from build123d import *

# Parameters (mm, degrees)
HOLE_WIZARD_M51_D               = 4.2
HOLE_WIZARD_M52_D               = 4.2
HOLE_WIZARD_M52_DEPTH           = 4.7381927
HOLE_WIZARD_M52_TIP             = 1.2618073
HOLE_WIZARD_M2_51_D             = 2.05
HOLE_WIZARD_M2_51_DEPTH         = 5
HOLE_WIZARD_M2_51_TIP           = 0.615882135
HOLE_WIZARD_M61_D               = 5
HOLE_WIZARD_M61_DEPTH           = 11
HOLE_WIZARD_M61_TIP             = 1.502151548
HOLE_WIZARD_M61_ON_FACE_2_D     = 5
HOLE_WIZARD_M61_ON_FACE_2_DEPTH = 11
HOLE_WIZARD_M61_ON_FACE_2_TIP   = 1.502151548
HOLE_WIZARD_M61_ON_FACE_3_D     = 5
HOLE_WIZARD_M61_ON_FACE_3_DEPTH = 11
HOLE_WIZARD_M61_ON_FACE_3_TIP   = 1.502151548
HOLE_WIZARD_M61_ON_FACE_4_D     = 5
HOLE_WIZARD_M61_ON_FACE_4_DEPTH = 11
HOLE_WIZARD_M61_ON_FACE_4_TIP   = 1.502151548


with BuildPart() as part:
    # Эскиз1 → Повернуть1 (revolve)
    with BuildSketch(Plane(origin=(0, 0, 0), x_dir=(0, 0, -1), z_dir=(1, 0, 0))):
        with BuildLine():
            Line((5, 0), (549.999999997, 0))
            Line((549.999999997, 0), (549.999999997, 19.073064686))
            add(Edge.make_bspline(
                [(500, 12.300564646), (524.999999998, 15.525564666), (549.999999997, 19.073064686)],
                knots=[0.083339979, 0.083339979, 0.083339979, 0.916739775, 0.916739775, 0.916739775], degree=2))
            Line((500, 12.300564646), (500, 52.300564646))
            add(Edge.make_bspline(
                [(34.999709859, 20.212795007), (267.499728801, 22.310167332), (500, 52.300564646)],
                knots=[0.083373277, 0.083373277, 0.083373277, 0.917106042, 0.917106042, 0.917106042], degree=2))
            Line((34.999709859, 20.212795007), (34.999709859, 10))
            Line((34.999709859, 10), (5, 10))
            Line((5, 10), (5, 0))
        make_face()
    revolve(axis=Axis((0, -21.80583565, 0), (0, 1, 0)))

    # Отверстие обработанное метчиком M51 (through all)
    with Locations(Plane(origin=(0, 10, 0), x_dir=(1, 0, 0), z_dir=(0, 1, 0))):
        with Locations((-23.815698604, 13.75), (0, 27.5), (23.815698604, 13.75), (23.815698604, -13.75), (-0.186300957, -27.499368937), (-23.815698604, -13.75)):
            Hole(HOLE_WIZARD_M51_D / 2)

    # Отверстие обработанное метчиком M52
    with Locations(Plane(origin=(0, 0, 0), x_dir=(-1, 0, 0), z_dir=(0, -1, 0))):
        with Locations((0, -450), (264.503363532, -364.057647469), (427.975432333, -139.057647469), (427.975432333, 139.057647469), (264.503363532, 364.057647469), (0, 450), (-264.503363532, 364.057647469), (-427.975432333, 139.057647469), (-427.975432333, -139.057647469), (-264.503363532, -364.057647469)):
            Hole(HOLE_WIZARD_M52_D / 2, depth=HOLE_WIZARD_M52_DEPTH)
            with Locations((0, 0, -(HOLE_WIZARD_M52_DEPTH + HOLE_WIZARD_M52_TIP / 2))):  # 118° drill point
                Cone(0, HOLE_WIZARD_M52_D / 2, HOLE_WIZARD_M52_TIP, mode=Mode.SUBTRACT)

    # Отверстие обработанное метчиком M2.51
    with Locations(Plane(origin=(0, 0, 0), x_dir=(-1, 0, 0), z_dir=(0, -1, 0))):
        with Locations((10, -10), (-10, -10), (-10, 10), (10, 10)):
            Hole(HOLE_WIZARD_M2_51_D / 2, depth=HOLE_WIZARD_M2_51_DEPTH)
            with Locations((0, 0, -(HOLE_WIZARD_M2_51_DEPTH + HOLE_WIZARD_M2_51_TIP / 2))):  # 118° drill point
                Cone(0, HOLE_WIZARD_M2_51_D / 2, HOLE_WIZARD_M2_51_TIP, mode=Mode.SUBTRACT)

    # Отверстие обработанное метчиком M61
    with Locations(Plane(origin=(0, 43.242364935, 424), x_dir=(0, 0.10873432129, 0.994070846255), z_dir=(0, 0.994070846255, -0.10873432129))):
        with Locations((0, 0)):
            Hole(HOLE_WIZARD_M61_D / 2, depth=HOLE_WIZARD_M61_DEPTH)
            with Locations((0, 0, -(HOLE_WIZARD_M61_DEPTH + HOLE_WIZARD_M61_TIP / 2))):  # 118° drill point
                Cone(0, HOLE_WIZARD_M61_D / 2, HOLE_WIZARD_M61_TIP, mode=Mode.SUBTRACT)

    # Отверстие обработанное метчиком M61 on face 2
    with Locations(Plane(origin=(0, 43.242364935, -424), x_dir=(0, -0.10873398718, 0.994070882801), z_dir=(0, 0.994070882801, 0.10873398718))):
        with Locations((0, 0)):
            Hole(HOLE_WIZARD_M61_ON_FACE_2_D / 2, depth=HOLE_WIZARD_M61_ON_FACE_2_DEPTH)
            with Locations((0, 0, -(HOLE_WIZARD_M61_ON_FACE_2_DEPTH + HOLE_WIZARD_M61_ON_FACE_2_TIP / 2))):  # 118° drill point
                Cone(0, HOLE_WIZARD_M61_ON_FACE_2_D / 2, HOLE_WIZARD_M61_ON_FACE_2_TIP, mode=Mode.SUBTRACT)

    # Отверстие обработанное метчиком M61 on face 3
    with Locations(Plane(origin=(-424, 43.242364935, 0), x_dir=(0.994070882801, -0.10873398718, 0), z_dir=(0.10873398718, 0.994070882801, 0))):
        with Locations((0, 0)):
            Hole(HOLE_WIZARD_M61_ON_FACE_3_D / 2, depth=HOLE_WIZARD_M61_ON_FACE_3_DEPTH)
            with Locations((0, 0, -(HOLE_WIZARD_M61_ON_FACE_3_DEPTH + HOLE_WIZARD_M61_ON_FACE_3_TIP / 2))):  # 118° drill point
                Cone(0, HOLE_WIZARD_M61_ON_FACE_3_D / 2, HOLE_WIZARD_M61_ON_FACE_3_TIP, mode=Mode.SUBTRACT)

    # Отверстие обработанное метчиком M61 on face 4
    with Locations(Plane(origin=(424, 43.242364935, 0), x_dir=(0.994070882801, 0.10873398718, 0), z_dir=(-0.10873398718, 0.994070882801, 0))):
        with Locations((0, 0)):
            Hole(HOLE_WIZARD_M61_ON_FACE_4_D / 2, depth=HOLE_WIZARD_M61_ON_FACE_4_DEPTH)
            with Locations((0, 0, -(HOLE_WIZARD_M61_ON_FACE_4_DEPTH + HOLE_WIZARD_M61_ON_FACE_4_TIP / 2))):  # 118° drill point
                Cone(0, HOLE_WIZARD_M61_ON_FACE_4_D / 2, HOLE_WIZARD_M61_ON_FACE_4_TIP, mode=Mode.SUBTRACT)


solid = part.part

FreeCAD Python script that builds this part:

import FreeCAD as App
import Part
import Sketcher
Q = App.Units.Quantity

doc = App.newDocument("Part")
body = doc.addObject("PartDesign::Body", "Body")

# Sketch on YZ plane
sketch1 = body.newObject("Sketcher::SketchObject", "Sketch")
sketch1.AttachmentSupport = (doc.getObject("YZ_Plane"), [""])
sketch1.MapMode = "FlatFace"
sketch1.addGeometry(Part.LineSegment(App.Vector(0, -5, 0), App.Vector(0, -550, 0)), False)
sketch1.addGeometry(Part.LineSegment(App.Vector(0, -550, 0), App.Vector(19.073065, -550, 0)), False)
sketch1.addGeometry(Part.BSplineCurve([App.Vector(12.300565, -500, 0), App.Vector(15.525565, -525, 0), App.Vector(19.073065, -550, 0)], [3, 3], [0.083339979, 0.916739775], False, 2, [1, 1, 1], False), False)
sketch1.addGeometry(Part.LineSegment(App.Vector(12.300565, -500, 0), App.Vector(52.300565, -500, 0)), False)
sketch1.addGeometry(Part.BSplineCurve([App.Vector(20.212795, -34.99971, 0), App.Vector(22.310167, -267.499729, 0), App.Vector(52.300565, -500, 0)], [3, 3], [0.083373277, 0.917106042], False, 2, [1, 1, 1], False), False)
sketch1.addGeometry(Part.LineSegment(App.Vector(20.212795, -34.99971, 0), App.Vector(10, -34.99971, 0)), False)
sketch1.addGeometry(Part.LineSegment(App.Vector(10, -34.99971, 0), App.Vector(10, -5, 0)), False)
sketch1.addGeometry(Part.LineSegment(App.Vector(10, -5, 0), App.Vector(0, -5, 0)), False)
sketch1.addConstraint(Sketcher.Constraint("Block", 2))
sketch1.addConstraint(Sketcher.Constraint("Block", 4))
sketch1.addConstraint(Sketcher.Constraint("Coincident", 0, 2, 1, 1))
sketch1.addConstraint(Sketcher.Constraint("Coincident", 1, 2, 2, 2))
sketch1.addConstraint(Sketcher.Constraint("Coincident", 2, 1, 3, 1))
sketch1.addConstraint(Sketcher.Constraint("Coincident", 3, 2, 4, 2))
sketch1.addConstraint(Sketcher.Constraint("Coincident", 4, 1, 5, 1))
sketch1.addConstraint(Sketcher.Constraint("Coincident", 5, 2, 6, 1))
sketch1.addConstraint(Sketcher.Constraint("Coincident", 6, 2, 7, 1))
sketch1.addConstraint(Sketcher.Constraint("Coincident", 7, 2, 0, 1))
sketch1.addConstraint(Sketcher.Constraint("Vertical", 0))
sketch1.addConstraint(Sketcher.Constraint("Horizontal", 1))
sketch1.addConstraint(Sketcher.Constraint("Horizontal", 5))
sketch1.addConstraint(Sketcher.Constraint("Vertical", 6))
sketch1.addConstraint(Sketcher.Constraint("Horizontal", 7))
sketch1.addConstraint(Sketcher.Constraint("PointOnObject", 0, 2, -2))
sketch1.addConstraint(Sketcher.Constraint("DistanceX", 7, 2, 7, 1, Q("10 mm")))
sketch1.addConstraint(Sketcher.Constraint("DistanceY", 0, 2, 0, 1, Q("545 mm")))
revolution = body.newObject("PartDesign::Revolution", "Revolution")
revolution.Profile = sketch1
revolution.ReferenceAxis = (sketch1, ["H_Axis"])
revolution.Angle = 360

# Sketch on XZ plane
sketch2 = body.newObject("Sketcher::SketchObject", "Sketch001")
sketch2.AttachmentSupport = (doc.getObject("XZ_Plane"), [""])
sketch2.MapMode = "FlatFace"
sketch2.AttachmentOffset = App.Placement(App.Vector(0, 0, -10), App.Rotation())
sketch2.addGeometry(Part.Circle(App.Vector(-23.815699, -13.75, 0), App.Vector(0, 0, 1), 2.1), False)
sketch2.addGeometry(Part.Circle(App.Vector(0, -27.5, 0), App.Vector(0, 0, 1), 2.1), False)
sketch2.addGeometry(Part.Circle(App.Vector(23.815699, -13.75, 0), App.Vector(0, 0, 1), 2.1), False)
sketch2.addGeometry(Part.Circle(App.Vector(23.815699, 13.75, 0), App.Vector(0, 0, 1), 2.1), False)
sketch2.addGeometry(Part.Circle(App.Vector(-0.186301, 27.499369, 0), App.Vector(0, 0, 1), 2.1), False)
sketch2.addGeometry(Part.Circle(App.Vector(-23.815699, 13.75, 0), App.Vector(0, 0, 1), 2.1), False)
sketch2.addConstraint(Sketcher.Constraint("Equal", 0, 1))
sketch2.addConstraint(Sketcher.Constraint("Equal", 1, 2))
sketch2.addConstraint(Sketcher.Constraint("Equal", 2, 3))
sketch2.addConstraint(Sketcher.Constraint("Equal", 3, 4))
sketch2.addConstraint(Sketcher.Constraint("Equal", 4, 5))
sketch2.addConstraint(Sketcher.Constraint("Symmetric", 0, 3, 3, 3, -1, 1))
sketch2.addConstraint(Sketcher.Constraint("Symmetric", 2, 3, 5, 3, -1, 1))
sketch2.addConstraint(Sketcher.Constraint("Symmetric", 0, 3, 2, 3, -2))
sketch2.addConstraint(Sketcher.Constraint("PointOnObject", 1, 3, -2))
sketch2.addConstraint(Sketcher.Constraint("Diameter", 0, Q("4.2 mm")))
sketch2.addConstraint(Sketcher.Constraint("DistanceY", 1, 3, -1, 1, Q("27.5 mm")))
sketch2.addConstraint(Sketcher.Constraint("DistanceY", 2, 3, 3, 3, Q("27.5 mm")))
sketch2.addConstraint(Sketcher.Constraint("DistanceX", 4, 3, 3, 3, Q("24.002 mm")))
sketch2.addConstraint(Sketcher.Constraint("DistanceX", 0, 3, -1, 1, Q("23.815699 mm")))
sketch2.addConstraint(Sketcher.Constraint("DistanceY", -1, 1, 4, 3, Q("27.499369 mm")))
doc.recompute()
hole = body.newObject("PartDesign::Hole", "Hole")
hole.Profile = sketch2
hole.ThreadType = "None"
hole.Diameter = 4.2
hole.DepthType = "ThroughAll"
hole.Reversed = True

# Sketch on XZ plane
sketch3 = body.newObject("Sketcher::SketchObject", "Sketch002")
sketch3.AttachmentSupport = (doc.getObject("XZ_Plane"), [""])
sketch3.MapMode = "FlatFace"
sketch3.addGeometry(Part.Circle(App.Vector(0, 450, 0), App.Vector(0, 0, 1), 2.1), False)
sketch3.addGeometry(Part.Circle(App.Vector(-264.503364, 364.057647, 0), App.Vector(0, 0, 1), 2.1), False)
sketch3.addGeometry(Part.Circle(App.Vector(-427.975432, 139.057647, 0), App.Vector(0, 0, 1), 2.1), False)
sketch3.addGeometry(Part.Circle(App.Vector(-427.975432, -139.057647, 0), App.Vector(0, 0, 1), 2.1), False)
sketch3.addGeometry(Part.Circle(App.Vector(-264.503364, -364.057647, 0), App.Vector(0, 0, 1), 2.1), False)
sketch3.addGeometry(Part.Circle(App.Vector(0, -450, 0), App.Vector(0, 0, 1), 2.1), False)
sketch3.addGeometry(Part.Circle(App.Vector(264.503364, -364.057647, 0), App.Vector(0, 0, 1), 2.1), False)
sketch3.addGeometry(Part.Circle(App.Vector(427.975432, -139.057647, 0), App.Vector(0, 0, 1), 2.1), False)
sketch3.addGeometry(Part.Circle(App.Vector(427.975432, 139.057647, 0), App.Vector(0, 0, 1), 2.1), False)
sketch3.addGeometry(Part.Circle(App.Vector(264.503364, 364.057647, 0), App.Vector(0, 0, 1), 2.1), False)
sketch3.addConstraint(Sketcher.Constraint("Equal", 0, 1))
sketch3.addConstraint(Sketcher.Constraint("Equal", 1, 2))
sketch3.addConstraint(Sketcher.Constraint("Equal", 2, 3))
sketch3.addConstraint(Sketcher.Constraint("Equal", 3, 4))
sketch3.addConstraint(Sketcher.Constraint("Equal", 4, 5))
sketch3.addConstraint(Sketcher.Constraint("Equal", 5, 6))
sketch3.addConstraint(Sketcher.Constraint("Equal", 6, 7))
sketch3.addConstraint(Sketcher.Constraint("Equal", 7, 8))
sketch3.addConstraint(Sketcher.Constraint("Equal", 8, 9))
sketch3.addConstraint(Sketcher.Constraint("Symmetric", 0, 3, 5, 3, -1, 1))
sketch3.addConstraint(Sketcher.Constraint("Symmetric", 1, 3, 6, 3, -1, 1))
sketch3.addConstraint(Sketcher.Constraint("Symmetric", 2, 3, 7, 3, -1, 1))
sketch3.addConstraint(Sketcher.Constraint("Symmetric", 3, 3, 8, 3, -1, 1))
sketch3.addConstraint(Sketcher.Constraint("Symmetric", 4, 3, 9, 3, -1, 1))
sketch3.addConstraint(Sketcher.Constraint("Symmetric", 4, 3, 6, 3, -2))
sketch3.addConstraint(Sketcher.Constraint("Symmetric", 3, 3, 7, 3, -2))
sketch3.addConstraint(Sketcher.Constraint("PointOnObject", 0, 3, -2))
sketch3.addConstraint(Sketcher.Constraint("Diameter", 0, Q("4.2 mm")))
sketch3.addConstraint(Sketcher.Constraint("DistanceY", -1, 1, 0, 3, Q("450 mm")))
sketch3.addConstraint(Sketcher.Constraint("DistanceY", 2, 3, 1, 3, Q("225 mm")))
sketch3.addConstraint(Sketcher.Constraint("DistanceX", 2, 3, 1, 3, Q("163.472069 mm")))
sketch3.addConstraint(Sketcher.Constraint("DistanceX", 1, 3, -1, 1, Q("264.503364 mm")))
sketch3.addConstraint(Sketcher.Constraint("DistanceY", -1, 1, 1, 3, Q("364.057647 mm")))
doc.recompute()
hole2 = body.newObject("PartDesign::Hole", "Hole001")
hole2.Profile = sketch3
hole2.ThreadType = "None"
hole2.Diameter = 4.2
hole2.DepthType = "Dimension"
hole2.Depth = 4.738193
hole2.DrillPoint = "Angled"
hole2.DrillPointAngle = 118

# Sketch on XZ plane
sketch4 = body.newObject("Sketcher::SketchObject", "Sketch003")
sketch4.AttachmentSupport = (doc.getObject("XZ_Plane"), [""])
sketch4.MapMode = "FlatFace"
sketch4.addGeometry(Part.Circle(App.Vector(-10, 10, 0), App.Vector(0, 0, 1), 1.025), False)
sketch4.addGeometry(Part.Circle(App.Vector(10, 10, 0), App.Vector(0, 0, 1), 1.025), False)
sketch4.addGeometry(Part.Circle(App.Vector(10, -10, 0), App.Vector(0, 0, 1), 1.025), False)
sketch4.addGeometry(Part.Circle(App.Vector(-10, -10, 0), App.Vector(0, 0, 1), 1.025), False)
sketch4.addConstraint(Sketcher.Constraint("Equal", 0, 1))
sketch4.addConstraint(Sketcher.Constraint("Equal", 1, 2))
sketch4.addConstraint(Sketcher.Constraint("Equal", 2, 3))
sketch4.addConstraint(Sketcher.Constraint("Symmetric", 0, 3, 2, 3, -1, 1))
sketch4.addConstraint(Sketcher.Constraint("Symmetric", 1, 3, 3, 3, -1, 1))
sketch4.addConstraint(Sketcher.Constraint("Symmetric", 0, 3, 1, 3, -2))
sketch4.addConstraint(Sketcher.Constraint("Diameter", 0, Q("2.05 mm")))
sketch4.addConstraint(Sketcher.Constraint("DistanceX", 0, 3, -1, 1, Q("10 mm")))
sketch4.addConstraint(Sketcher.Constraint("DistanceY", -1, 1, 0, 3, Q("10 mm")))
doc.recompute()
hole3 = body.newObject("PartDesign::Hole", "Hole002")
hole3.Profile = sketch4
hole3.ThreadType = "None"
hole3.Diameter = 2.05
hole3.DepthType = "Dimension"
hole3.Depth = 5
hole3.DrillPoint = "Angled"
hole3.DrillPointAngle = 118

# Sketch on an angled plane
sketch5 = body.newObject("Sketcher::SketchObject", "Sketch004")
sketch5.Placement = App.Placement(App.Vector(0, -3.098895, 0.338966), App.Rotation(App.Vector(0, 0.108734321, 0.994070846), App.Vector(0.999999999, 0, 0), App.Vector(0, 0.994070846, -0.108734321), "ZXY"))
sketch5.addGeometry(Part.Circle(App.Vector(426.187968, 0, 0), App.Vector(0, 0, 1), 2.5), False)
sketch5.addConstraint(Sketcher.Constraint("PointOnObject", 0, 3, -1))
sketch5.addConstraint(Sketcher.Constraint("Diameter", 0, Q("5 mm")))
sketch5.addConstraint(Sketcher.Constraint("DistanceX", -1, 1, 0, 3, Q("426.187968 mm")))
doc.recompute()
hole4 = body.newObject("PartDesign::Hole", "Hole003")
hole4.Profile = sketch5
hole4.ThreadType = "None"
hole4.Diameter = 5
hole4.DepthType = "Dimension"
hole4.Depth = 11
hole4.DrillPoint = "Angled"
hole4.DrillPointAngle = 118

# Sketch on an angled plane
sketch6 = body.newObject("Sketcher::SketchObject", "Sketch005")
sketch6.Placement = App.Placement(App.Vector(0, -3.098752, -0.338949), App.Rotation(App.Vector(0, -0.108733987, 0.994070883), App.Vector(1, 0, 0), App.Vector(0, 0.994070883, 0.108733987), "ZXY"))
sketch6.addGeometry(Part.Circle(App.Vector(-426.187969, 0, 0), App.Vector(0, 0, 1), 2.5), False)
sketch6.addConstraint(Sketcher.Constraint("PointOnObject", 0, 3, -1))
sketch6.addConstraint(Sketcher.Constraint("Diameter", 0, Q("5 mm")))
sketch6.addConstraint(Sketcher.Constraint("DistanceX", 0, 3, -1, 1, Q("426.187969 mm")))
doc.recompute()
hole5 = body.newObject("PartDesign::Hole", "Hole004")
hole5.Profile = sketch6
hole5.ThreadType = "None"
hole5.Diameter = 5
hole5.DepthType = "Dimension"
hole5.Depth = 11
hole5.DrillPoint = "Angled"
hole5.DrillPointAngle = 118

# Sketch on an angled plane
sketch7 = body.newObject("Sketcher::SketchObject", "Sketch006")
sketch7.Placement = App.Placement(App.Vector(-0.338949, -3.098752, 0), App.Rotation(App.Vector(0.994070883, -0.108733987, 0), App.Vector(0, 0, -1), App.Vector(0.108733987, 0.994070883, 0), "ZXY"))
sketch7.addGeometry(Part.Circle(App.Vector(-426.187969, 0, 0), App.Vector(0, 0, 1), 2.5), False)
sketch7.addConstraint(Sketcher.Constraint("PointOnObject", 0, 3, -1))
sketch7.addConstraint(Sketcher.Constraint("Diameter", 0, Q("5 mm")))
sketch7.addConstraint(Sketcher.Constraint("DistanceX", 0, 3, -1, 1, Q("426.187969 mm")))
doc.recompute()
hole6 = body.newObject("PartDesign::Hole", "Hole005")
hole6.Profile = sketch7
hole6.ThreadType = "None"
hole6.Diameter = 5
hole6.DepthType = "Dimension"
hole6.Depth = 11
hole6.DrillPoint = "Angled"
hole6.DrillPointAngle = 118

# Sketch on an angled plane
sketch8 = body.newObject("Sketcher::SketchObject", "Sketch007")
sketch8.Placement = App.Placement(App.Vector(0.338949, -3.098752, 0), App.Rotation(App.Vector(0.994070883, 0.108733987, 0), App.Vector(0, 0, -1), App.Vector(-0.108733987, 0.994070883, 0), "ZXY"))
sketch8.addGeometry(Part.Circle(App.Vector(426.187969, 0, 0), App.Vector(0, 0, 1), 2.5), False)
sketch8.addConstraint(Sketcher.Constraint("PointOnObject", 0, 3, -1))
sketch8.addConstraint(Sketcher.Constraint("Diameter", 0, Q("5 mm")))
sketch8.addConstraint(Sketcher.Constraint("DistanceX", -1, 1, 0, 3, Q("426.187969 mm")))
doc.recompute()
hole7 = body.newObject("PartDesign::Hole", "Hole006")
hole7.Profile = sketch8
hole7.ThreadType = "None"
hole7.Diameter = 5
hole7.DepthType = "Dimension"
hole7.Depth = 11
hole7.DrillPoint = "Angled"
hole7.DrillPointAngle = 118

doc.recompute()
